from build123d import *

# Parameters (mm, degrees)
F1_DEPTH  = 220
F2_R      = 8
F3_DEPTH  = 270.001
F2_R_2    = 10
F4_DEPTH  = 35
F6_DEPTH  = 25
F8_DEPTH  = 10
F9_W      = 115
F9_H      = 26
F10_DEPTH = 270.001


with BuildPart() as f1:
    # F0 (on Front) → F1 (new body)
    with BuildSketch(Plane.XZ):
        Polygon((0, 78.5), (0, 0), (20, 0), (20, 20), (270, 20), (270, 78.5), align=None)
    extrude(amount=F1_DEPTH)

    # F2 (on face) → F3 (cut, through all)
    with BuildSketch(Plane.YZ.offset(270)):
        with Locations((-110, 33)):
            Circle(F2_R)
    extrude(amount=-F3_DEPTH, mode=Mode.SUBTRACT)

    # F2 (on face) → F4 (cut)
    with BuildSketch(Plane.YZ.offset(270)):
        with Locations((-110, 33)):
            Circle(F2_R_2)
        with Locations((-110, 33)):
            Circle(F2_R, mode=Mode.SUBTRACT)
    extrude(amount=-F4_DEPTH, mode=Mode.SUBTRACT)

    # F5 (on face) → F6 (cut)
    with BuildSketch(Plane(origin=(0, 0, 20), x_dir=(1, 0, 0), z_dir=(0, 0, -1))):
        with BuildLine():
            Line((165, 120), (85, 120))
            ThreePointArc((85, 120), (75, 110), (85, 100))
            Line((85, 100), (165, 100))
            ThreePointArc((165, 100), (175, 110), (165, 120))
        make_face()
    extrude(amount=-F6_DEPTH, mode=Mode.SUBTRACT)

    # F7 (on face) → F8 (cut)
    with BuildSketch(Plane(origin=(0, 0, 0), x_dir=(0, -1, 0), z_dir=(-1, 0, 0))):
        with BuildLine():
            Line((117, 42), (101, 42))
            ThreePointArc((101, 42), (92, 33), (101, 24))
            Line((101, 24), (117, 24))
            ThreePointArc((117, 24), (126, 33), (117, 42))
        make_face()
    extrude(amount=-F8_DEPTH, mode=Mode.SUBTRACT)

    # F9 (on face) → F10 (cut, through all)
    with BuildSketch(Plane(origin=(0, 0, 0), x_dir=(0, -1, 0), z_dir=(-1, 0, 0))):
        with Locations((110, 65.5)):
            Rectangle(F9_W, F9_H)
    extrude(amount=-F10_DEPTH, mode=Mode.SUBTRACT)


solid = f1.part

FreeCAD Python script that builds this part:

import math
import FreeCAD as App
import Part
import Sketcher
from FreeCAD import Vector
Q = App.Units.Quantity


def add_polygon(sketch, points):
    """Adds a closed chain of lines whose ends are joined by coincident constraints."""
    first, n = sketch.GeometryCount, len(points)
    for a, b in zip(points, points[1:] + points[:1]):
        sketch.addGeometry(Part.LineSegment(App.Vector(*a, 0), App.Vector(*b, 0)), False)
    for i in range(n):
        sketch.addConstraint(Sketcher.Constraint("Coincident", first + i, 2, first + (i + 1) % n, 1))

doc = App.newDocument("Part")
body = doc.addObject("PartDesign::Body", "Body")

# Sketch on XZ plane
sketch1 = body.newObject("Sketcher::SketchObject", "Sketch")
sketch1.AttachmentSupport = (doc.getObject("XZ_Plane"), [""])
sketch1.MapMode = "FlatFace"
add_polygon(sketch1, [(0, 78), (0, 0), (20, 0), (20, 20), (270, 20), (270, 78)])  # lines 0-5
sketch1.addConstraint(Sketcher.Constraint("Vertical", 0))
sketch1.addConstraint(Sketcher.Constraint("Horizontal", 1))
sketch1.addConstraint(Sketcher.Constraint("Vertical", 2))
sketch1.addConstraint(Sketcher.Constraint("Horizontal", 3))
sketch1.addConstraint(Sketcher.Constraint("Vertical", 4))
sketch1.addConstraint(Sketcher.Constraint("Horizontal", 5))
sketch1.addConstraint(Sketcher.Constraint("Coincident", 0, 2, -1, 1))
sketch1.addConstraint(Sketcher.Constraint("Equal", 1, 2))
sketch1.addConstraint(Sketcher.Constraint("DistanceX", 1, 1, 1, 2, Q("20 mm")))
sketch1.addConstraint(Sketcher.Constraint("DistanceX", 3, 1, 3, 2, Q("250 mm")))
sketch1.addConstraint(Sketcher.Constraint("DistanceY", 0, 2, 0, 1, Q("78.5 mm")))
pad1 = body.newObject("PartDesign::Pad", "Pad")
pad1.Profile = sketch1
pad1.Length = 220

# Sketch on YZ plane
sketch2 = body.newObject("Sketcher::SketchObject", "Sketch001")
sketch2.AttachmentSupport = (doc.getObject("YZ_Plane"), [""])
sketch2.MapMode = "FlatFace"
sketch2.AttachmentOffset = App.Placement(Vector(0, 0, 270), App.Rotation())
sketch2.addGeometry(Part.Circle(Vector(-110, 33, 0), Vector(0, 0, 1), 8), False)
sketch2.addConstraint(Sketcher.Constraint("Diameter", 0, Q("16 mm")))
sketch2.addConstraint(Sketcher.Constraint("DistanceX", 0, 3, -1, 1, Q("110 mm")))
sketch2.addConstraint(Sketcher.Constraint("DistanceY", -1, 1, 0, 3, Q("33 mm")))
pocket1 = body.newObject("PartDesign::Pocket", "Pocket")
pocket1.Profile = sketch2
pocket1.Type = "ThroughAll"

# Sketch on YZ plane
sketch3 = body.newObject("Sketcher::SketchObject", "Sketch002")
sketch3.AttachmentSupport = (doc.getObject("YZ_Plane"), [""])
sketch3.MapMode = "FlatFace"
sketch3.AttachmentOffset = App.Placement(Vector(0, 0, 270), App.Rotation())
sketch3.addGeometry(Part.Circle(Vector(-110, 33, 0), Vector(0, 0, 1), 10), False)
sketch3.addGeometry(Part.Circle(Vector(-110, 33, 0), Vector(0, 0, 1), 8), False)
sketch3.addConstraint(Sketcher.Constraint("Coincident", 1, 3, 0, 3))
sketch3.addConstraint(Sketcher.Constraint("Diameter", 0, Q("20 mm")))
sketch3.addConstraint(Sketcher.Constraint("Diameter", 1, Q("16 mm")))
sketch3.addConstraint(Sketcher.Constraint("DistanceX", 0, 3, -1, 1, Q("110 mm")))
sketch3.addConstraint(Sketcher.Constraint("DistanceY", -1, 1, 0, 3, Q("33 mm")))
pocket2 = body.newObject("PartDesign::Pocket", "Pocket001")
pocket2.Profile = sketch3
pocket2.Length = 35

# Sketch on XY plane
sketch4 = body.newObject("Sketcher::SketchObject", "Sketch003")
sketch4.AttachmentSupport = (doc.getObject("XY_Plane"), [""])
sketch4.MapMode = "FlatFace"
sketch4.AttachmentOffset = App.Placement(Vector(0, 0, 20), App.Rotation())
sketch4.addGeometry(Part.LineSegment(Vector(165, -120, 0), Vector(85, -120, 0)), False)
sketch4.addGeometry(Part.ArcOfCircle(Part.Circle(Vector(85, -110, 0), Vector(0, 0, 1), 10), math.radians(90), math.radians(270)), False)
sketch4.addGeometry(Part.LineSegment(Vector(85, -100, 0), Vector(165, -100, 0)), False)
sketch4.addGeometry(Part.ArcOfCircle(Part.Circle(Vector(165, -110, 0), Vector(0, 0, 1), 10), math.radians(-90), math.radians(90)), False)
sketch4.addConstraint(Sketcher.Constraint("Tangent", 0, 2, 1, 2))
sketch4.addConstraint(Sketcher.Constraint("Tangent", 1, 1, 2, 1))
sketch4.addConstraint(Sketcher.Constraint("Tangent", 2, 2, 3, 2))
sketch4.addConstraint(Sketcher.Constraint("Tangent", 3, 1, 0, 1))
sketch4.addConstraint(Sketcher.Constraint("Horizontal", 0))
sketch4.addConstraint(Sketcher.Constraint("Horizontal", 2))
sketch4.addConstraint(Sketcher.Constraint("Radius", 1, Q("10 mm")))
sketch4.addConstraint(Sketcher.Constraint("DistanceX", 0, 2, 0, 1, Q("80 mm")))
sketch4.addConstraint(Sketcher.Constraint("DistanceX", -1, 1, 1, 3, Q("85 mm")))
sketch4.addConstraint(Sketcher.Constraint("DistanceY", 1, 3, -1, 1, Q("110 mm")))
pocket3 = body.newObject("PartDesign::Pocket", "Pocket002")
pocket3.Profile = sketch4
pocket3.Length = 25
pocket3.Reversed = True

# Sketch on YZ plane
sketch5 = body.newObject("Sketcher::SketchObject", "Sketch004")
sketch5.AttachmentSupport = (doc.getObject("YZ_Plane"), [""])
sketch5.MapMode = "FlatFace"
sketch5.addGeometry(Part.LineSegment(Vector(-117, 42, 0), Vector(-101, 42, 0)), False)
sketch5.addGeometry(Part.ArcOfCircle(Part.Circle(Vector(-101, 33, 0), Vector(0, 0, 1), 9), math.radians(-90), math.radians(90)), False)
sketch5.addGeometry(Part.LineSegment(Vector(-101, 24, 0), Vector(-117, 24, 0)), False)
sketch5.addGeometry(Part.ArcOfCircle(Part.Circle(Vector(-117, 33, 0), Vector(0, 0, 1), 9), math.radians(90), math.radians(270)), False)
sketch5.addConstraint(Sketcher.Constraint("Tangent", 0, 2, 1, 2))
sketch5.addConstraint(Sketcher.Constraint("Tangent", 1, 1, 2, 1))
sketch5.addConstraint(Sketcher.Constraint("Tangent", 2, 2, 3, 2))
sketch5.addConstraint(Sketcher.Constraint("Tangent", 3, 1, 0, 1))
sketch5.addConstraint(Sketcher.Constraint("Horizontal", 0))
sketch5.addConstraint(Sketcher.Constraint("Horizontal", 2))
sketch5.addConstraint(Sketcher.Constraint("Radius", 1, Q("9 mm")))
sketch5.addConstraint(Sketcher.Constraint("DistanceX", 0, 1, 0, 2, Q("16 mm")))
sketch5.addConstraint(Sketcher.Constraint("DistanceX", 1, 3, -1, 1, Q("101 mm")))
sketch5.addConstraint(Sketcher.Constraint("DistanceY", -1, 1, 1, 3, Q("33 mm")))
pocket4 = body.newObject("PartDesign::Pocket", "Pocket003")
pocket4.Profile = sketch5
pocket4.Length = 10
pocket4.Reversed = True

# Sketch on YZ plane
sketch6 = body.newObject("Sketcher::SketchObject", "Sketch005")
sketch6.AttachmentSupport = (doc.getObject("YZ_Plane"), [""])
sketch6.MapMode = "FlatFace"
add_polygon(sketch6, [(-52, 78), (-52, 52), (-168, 52), (-168, 78)])  # lines 0-3
sketch6.addConstraint(Sketcher.Constraint("Vertical", 0))
sketch6.addConstraint(Sketcher.Constraint("Horizontal", 1))
sketch6.addConstraint(Sketcher.Constraint("Vertical", 2))
sketch6.addConstraint(Sketcher.Constraint("Horizontal", 3))
sketch6.addConstraint(Sketcher.Constraint("DistanceX", 1, 2, 1, 1, Q("115 mm")))
sketch6.addConstraint(Sketcher.Constraint("DistanceY", 0, 2, 0, 1, Q("26 mm")))
sketch6.addConstraint(Sketcher.Constraint("DistanceX", 0, 2, -1, 1, Q("52.5 mm")))
sketch6.addConstraint(Sketcher.Constraint("DistanceY", -1, 1, 0, 2, Q("52.5 mm")))
pocket5 = body.newObject("PartDesign::Pocket", "Pocket004")
pocket5.Profile = sketch6
pocket5.Type = "ThroughAll"
pocket5.Reversed = True

doc.recompute()
